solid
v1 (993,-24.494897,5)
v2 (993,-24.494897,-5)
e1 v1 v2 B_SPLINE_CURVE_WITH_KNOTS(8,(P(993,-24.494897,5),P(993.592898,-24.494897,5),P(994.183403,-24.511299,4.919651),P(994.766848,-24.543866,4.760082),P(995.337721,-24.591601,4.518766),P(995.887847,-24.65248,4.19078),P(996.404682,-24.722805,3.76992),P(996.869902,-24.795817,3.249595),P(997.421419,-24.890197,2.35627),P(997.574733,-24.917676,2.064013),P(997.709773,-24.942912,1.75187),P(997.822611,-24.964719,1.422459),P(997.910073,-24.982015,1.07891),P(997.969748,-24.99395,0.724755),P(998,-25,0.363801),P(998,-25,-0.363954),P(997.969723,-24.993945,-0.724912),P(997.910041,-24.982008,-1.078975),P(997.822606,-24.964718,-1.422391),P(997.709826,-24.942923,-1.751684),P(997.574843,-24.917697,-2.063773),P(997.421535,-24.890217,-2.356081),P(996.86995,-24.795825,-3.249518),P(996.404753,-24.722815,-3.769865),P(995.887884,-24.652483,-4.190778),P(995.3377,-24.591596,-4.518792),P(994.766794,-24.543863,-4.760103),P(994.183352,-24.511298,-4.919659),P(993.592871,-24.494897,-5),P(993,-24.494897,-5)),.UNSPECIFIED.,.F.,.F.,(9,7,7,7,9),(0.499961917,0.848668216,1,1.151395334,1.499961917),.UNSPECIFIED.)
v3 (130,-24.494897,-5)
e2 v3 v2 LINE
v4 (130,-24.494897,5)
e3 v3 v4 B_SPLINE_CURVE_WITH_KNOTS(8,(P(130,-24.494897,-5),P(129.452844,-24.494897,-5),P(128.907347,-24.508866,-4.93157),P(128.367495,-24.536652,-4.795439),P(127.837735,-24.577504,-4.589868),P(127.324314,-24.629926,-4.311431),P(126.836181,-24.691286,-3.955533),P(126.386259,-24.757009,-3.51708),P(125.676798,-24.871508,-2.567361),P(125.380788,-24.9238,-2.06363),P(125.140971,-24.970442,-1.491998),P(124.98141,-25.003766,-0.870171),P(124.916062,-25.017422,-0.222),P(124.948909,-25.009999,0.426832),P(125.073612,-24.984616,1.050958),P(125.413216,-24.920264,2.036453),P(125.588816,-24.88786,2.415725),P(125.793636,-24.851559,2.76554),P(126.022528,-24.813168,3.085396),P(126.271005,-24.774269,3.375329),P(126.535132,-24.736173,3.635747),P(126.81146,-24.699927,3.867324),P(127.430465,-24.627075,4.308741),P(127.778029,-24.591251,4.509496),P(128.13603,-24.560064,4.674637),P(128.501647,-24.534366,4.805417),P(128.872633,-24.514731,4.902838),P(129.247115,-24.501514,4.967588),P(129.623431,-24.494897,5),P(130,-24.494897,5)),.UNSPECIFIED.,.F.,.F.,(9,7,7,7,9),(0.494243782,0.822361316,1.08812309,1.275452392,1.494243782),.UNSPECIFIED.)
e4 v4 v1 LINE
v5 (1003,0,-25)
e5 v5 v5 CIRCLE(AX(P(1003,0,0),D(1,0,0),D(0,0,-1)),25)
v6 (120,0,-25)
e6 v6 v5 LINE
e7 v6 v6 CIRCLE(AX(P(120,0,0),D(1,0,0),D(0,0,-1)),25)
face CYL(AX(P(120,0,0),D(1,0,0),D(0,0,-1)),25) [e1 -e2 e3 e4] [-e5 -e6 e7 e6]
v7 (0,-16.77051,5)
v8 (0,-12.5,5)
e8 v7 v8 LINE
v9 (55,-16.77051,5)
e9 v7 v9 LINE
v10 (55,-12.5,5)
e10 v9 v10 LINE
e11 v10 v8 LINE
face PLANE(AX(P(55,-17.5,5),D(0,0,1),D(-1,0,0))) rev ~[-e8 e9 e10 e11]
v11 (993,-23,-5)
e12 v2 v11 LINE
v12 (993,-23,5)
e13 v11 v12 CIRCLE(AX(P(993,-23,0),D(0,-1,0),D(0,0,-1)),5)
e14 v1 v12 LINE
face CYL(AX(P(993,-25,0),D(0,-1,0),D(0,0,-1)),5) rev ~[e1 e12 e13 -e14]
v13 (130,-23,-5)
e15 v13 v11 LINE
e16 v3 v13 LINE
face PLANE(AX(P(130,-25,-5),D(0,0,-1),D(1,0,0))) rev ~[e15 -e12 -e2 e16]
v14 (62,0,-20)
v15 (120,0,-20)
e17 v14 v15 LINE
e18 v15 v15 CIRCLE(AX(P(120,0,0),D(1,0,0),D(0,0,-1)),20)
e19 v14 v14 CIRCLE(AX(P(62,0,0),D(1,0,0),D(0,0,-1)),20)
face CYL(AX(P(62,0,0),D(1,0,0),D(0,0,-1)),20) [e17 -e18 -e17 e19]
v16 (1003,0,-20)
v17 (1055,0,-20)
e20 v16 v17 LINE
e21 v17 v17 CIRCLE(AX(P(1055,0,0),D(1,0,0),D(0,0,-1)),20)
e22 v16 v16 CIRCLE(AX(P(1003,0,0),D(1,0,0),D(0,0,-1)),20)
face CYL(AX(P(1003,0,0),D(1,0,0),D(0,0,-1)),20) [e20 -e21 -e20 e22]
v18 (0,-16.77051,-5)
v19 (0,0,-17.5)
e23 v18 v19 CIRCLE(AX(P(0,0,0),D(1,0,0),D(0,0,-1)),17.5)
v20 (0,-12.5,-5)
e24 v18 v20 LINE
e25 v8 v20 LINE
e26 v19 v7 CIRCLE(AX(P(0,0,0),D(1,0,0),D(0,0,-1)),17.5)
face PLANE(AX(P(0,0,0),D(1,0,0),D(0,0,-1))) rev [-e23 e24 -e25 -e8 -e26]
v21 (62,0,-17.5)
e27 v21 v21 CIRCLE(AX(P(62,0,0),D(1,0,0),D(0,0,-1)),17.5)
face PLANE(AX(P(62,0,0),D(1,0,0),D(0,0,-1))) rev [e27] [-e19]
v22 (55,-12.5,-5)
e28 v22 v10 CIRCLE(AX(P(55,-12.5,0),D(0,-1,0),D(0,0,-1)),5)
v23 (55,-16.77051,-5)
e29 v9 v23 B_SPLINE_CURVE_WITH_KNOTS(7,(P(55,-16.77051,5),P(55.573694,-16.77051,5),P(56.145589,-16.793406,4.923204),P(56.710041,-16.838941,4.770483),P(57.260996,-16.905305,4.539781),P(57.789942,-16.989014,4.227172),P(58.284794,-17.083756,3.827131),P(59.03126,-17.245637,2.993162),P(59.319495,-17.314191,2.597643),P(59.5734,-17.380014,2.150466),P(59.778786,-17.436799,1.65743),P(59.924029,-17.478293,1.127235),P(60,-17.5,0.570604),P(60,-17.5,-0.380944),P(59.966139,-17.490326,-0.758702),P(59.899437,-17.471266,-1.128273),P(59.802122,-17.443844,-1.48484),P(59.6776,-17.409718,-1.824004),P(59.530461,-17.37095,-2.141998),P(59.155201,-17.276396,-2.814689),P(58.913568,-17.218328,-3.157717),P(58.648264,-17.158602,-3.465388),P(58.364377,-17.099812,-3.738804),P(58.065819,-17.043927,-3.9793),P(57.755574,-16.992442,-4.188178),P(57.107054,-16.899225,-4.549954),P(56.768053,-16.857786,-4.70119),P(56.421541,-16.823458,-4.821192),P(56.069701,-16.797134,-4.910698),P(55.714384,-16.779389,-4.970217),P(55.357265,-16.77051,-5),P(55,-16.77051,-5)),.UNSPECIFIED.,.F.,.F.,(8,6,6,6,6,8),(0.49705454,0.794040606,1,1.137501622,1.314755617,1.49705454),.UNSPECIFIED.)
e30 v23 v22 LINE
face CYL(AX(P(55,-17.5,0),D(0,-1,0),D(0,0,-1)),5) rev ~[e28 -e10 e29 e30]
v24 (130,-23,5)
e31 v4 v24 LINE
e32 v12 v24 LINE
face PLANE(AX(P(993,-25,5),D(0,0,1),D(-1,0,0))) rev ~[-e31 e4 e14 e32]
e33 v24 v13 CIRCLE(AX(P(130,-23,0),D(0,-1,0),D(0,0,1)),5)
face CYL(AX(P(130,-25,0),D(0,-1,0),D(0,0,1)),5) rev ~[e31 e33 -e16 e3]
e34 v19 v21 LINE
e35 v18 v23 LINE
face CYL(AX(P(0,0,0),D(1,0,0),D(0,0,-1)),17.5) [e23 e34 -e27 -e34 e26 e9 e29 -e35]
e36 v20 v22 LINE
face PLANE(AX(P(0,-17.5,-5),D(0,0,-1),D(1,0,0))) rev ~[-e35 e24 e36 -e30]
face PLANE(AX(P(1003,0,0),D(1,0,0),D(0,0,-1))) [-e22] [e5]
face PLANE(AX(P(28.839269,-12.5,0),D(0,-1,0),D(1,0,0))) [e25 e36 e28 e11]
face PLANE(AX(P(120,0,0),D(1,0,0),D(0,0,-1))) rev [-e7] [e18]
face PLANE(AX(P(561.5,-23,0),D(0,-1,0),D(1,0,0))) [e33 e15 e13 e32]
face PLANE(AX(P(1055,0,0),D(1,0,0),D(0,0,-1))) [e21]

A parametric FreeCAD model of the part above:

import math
import FreeCAD as App
import Part
import Sketcher
Q = App.Units.Quantity


def add_polygon(sketch, points):
    """Adds a closed chain of lines whose ends are joined by coincident constraints."""
    first, n = sketch.GeometryCount, len(points)
    for a, b in zip(points, points[1:] + points[:1]):
        sketch.addGeometry(Part.LineSegment(App.Vector(*a, 0), App.Vector(*b, 0)), False)
    for i in range(n):
        sketch.addConstraint(Sketcher.Constraint("Coincident", first + i, 2, first + (i + 1) % n, 1))

doc = App.newDocument("Part")
body = doc.addObject("PartDesign::Body", "Body")

sketch1 = body.newObject("Sketcher::SketchObject", "Sketch")
sketch1.AttachmentSupport = (doc.getObject("XZ_Plane"), [""])
sketch1.MapMode = "FlatFace"
add_polygon(sketch1, [(1055, 0), (0, 0), (0, -17.5), (62, -17.5), (62, -20), (120, -20), (120, -25), (1003, -25), (1003, -20), (1055, -20)])
sketch1.addConstraint(Sketcher.Constraint("Horizontal", 0))
sketch1.addConstraint(Sketcher.Constraint("Vertical", 1))
sketch1.addConstraint(Sketcher.Constraint("Horizontal", 2))
sketch1.addConstraint(Sketcher.Constraint("Vertical", 3))
sketch1.addConstraint(Sketcher.Constraint("Horizontal", 4))
sketch1.addConstraint(Sketcher.Constraint("Vertical", 5))
sketch1.addConstraint(Sketcher.Constraint("Horizontal", 6))
sketch1.addConstraint(Sketcher.Constraint("Vertical", 7))
sketch1.addConstraint(Sketcher.Constraint("Horizontal", 8))
sketch1.addConstraint(Sketcher.Constraint("Vertical", 9))
sketch1.addConstraint(Sketcher.Constraint("Coincident", 0, 2, -1, 1))
sketch1.addConstraint(Sketcher.Constraint("Horizontal", 4, 2, 7, 2))
sketch1.addConstraint(Sketcher.Constraint("DistanceX", 0, 2, 0, 1, Q("1055 mm")))
sketch1.addConstraint(Sketcher.Constraint("DistanceX", 2, 1, 2, 2, Q("62 mm")))
sketch1.addConstraint(Sketcher.Constraint("DistanceX", 4, 1, 4, 2, Q("58 mm")))
sketch1.addConstraint(Sketcher.Constraint("DistanceX", 6, 1, 6, 2, Q("883 mm")))
sketch1.addConstraint(Sketcher.Constraint("DistanceY", 5, 2, 5, 1, Q("5 mm")))
sketch1.addConstraint(Sketcher.Constraint("DistanceY", 9, 1, 9, 2, Q("20 mm")))
sketch1.addConstraint(Sketcher.Constraint("DistanceY", 1, 2, 1, 1, Q("17.5 mm")))
revolution = body.newObject("PartDesign::Revolution", "Revolution")
revolution.Profile = sketch1
revolution.ReferenceAxis = (sketch1, ["H_Axis"])
revolution.Angle = 360

sketch2 = body.newObject("Sketcher::SketchObject", "Sketch001")
sketch2.AttachmentSupport = (doc.getObject("XZ_Plane"), [""])
sketch2.MapMode = "FlatFace"
sketch2.AttachmentOffset = App.Placement(App.Vector(0, 0, 17.5), App.Rotation())
sketch2.addGeometry(Part.LineSegment(App.Vector(55, 5, 0), App.Vector(0, 5, 0)), False)
sketch2.addGeometry(Part.LineSegment(App.Vector(0, 5, 0), App.Vector(0, -5, 0)), False)
sketch2.addGeometry(Part.LineSegment(App.Vector(0, -5, 0), App.Vector(55, -5, 0)), False)
sketch2.addGeometry(Part.ArcOfCircle(Part.Circle(App.Vector(55, 0, 0), App.Vector(0, 0, 1), 5), math.radians(-90), math.radians(90)), False)
sketch2.addConstraint(Sketcher.Constraint("Coincident", 0, 2, 1, 1))
sketch2.addConstraint(Sketcher.Constraint("Coincident", 1, 2, 2, 1))
sketch2.addConstraint(Sketcher.Constraint("Tangent", 2, 2, 3, 1))
sketch2.addConstraint(Sketcher.Constraint("Tangent", 3, 2, 0, 1))
sketch2.addConstraint(Sketcher.Constraint("Horizontal", 0))
sketch2.addConstraint(Sketcher.Constraint("Vertical", 1))
sketch2.addConstraint(Sketcher.Constraint("Horizontal", 2))
sketch2.addConstraint(Sketcher.Constraint("Symmetric", 0, 2, 1, 2, -1, 1))
sketch2.addConstraint(Sketcher.Constraint("Radius", 3, Q("5 mm")))
sketch2.addConstraint(Sketcher.Constraint("DistanceX", 0, 2, 0, 1, Q("55 mm")))
pocket1 = body.newObject("PartDesign::Pocket", "Pocket")
pocket1.Profile = sketch2
pocket1.Length = 5

sketch3 = body.newObject("Sketcher::SketchObject", "Sketch002")
sketch3.AttachmentSupport = (doc.getObject("XZ_Plane"), [""])
sketch3.MapMode = "FlatFace"
sketch3.AttachmentOffset = App.Placement(App.Vector(0, 0, 25), App.Rotation())
sketch3.addGeometry(Part.LineSegment(App.Vector(993, 5, 0), App.Vector(130, 5, 0)), False)
sketch3.addGeometry(Part.ArcOfCircle(Part.Circle(App.Vector(130, 0, 0), App.Vector(0, 0, 1), 5), math.radians(90), math.radians(270)), False)
sketch3.addGeometry(Part.LineSegment(App.Vector(130, -5, 0), App.Vector(993, -5, 0)), False)
sketch3.addGeometry(Part.ArcOfCircle(Part.Circle(App.Vector(993, 0, 0), App.Vector(0, 0, 1), 5), math.radians(-90), math.radians(90)), False)
sketch3.addConstraint(Sketcher.Constraint("Tangent", 0, 2, 1, 1))
sketch3.addConstraint(Sketcher.Constraint("Tangent", 1, 2, 2, 1))
sketch3.addConstraint(Sketcher.Constraint("Tangent", 2, 2, 3, 1))
sketch3.addConstraint(Sketcher.Constraint("Tangent", 3, 2, 0, 1))
sketch3.addConstraint(Sketcher.Constraint("Horizontal", 0))
sketch3.addConstraint(Sketcher.Constraint("Horizontal", 2))
sketch3.addConstraint(Sketcher.Constraint("PointOnObject", 1, 3, -1))
sketch3.addConstraint(Sketcher.Constraint("Radius", 1, Q("5 mm")))
sketch3.addConstraint(Sketcher.Constraint("DistanceX", 0, 2, 0, 1, Q("863 mm")))
sketch3.addConstraint(Sketcher.Constraint("DistanceX", -1, 1, 1, 3, Q("130 mm")))
pocket2 = body.newObject("PartDesign::Pocket", "Pocket001")
pocket2.Profile = sketch3
pocket2.Length = 2

doc.recompute()
